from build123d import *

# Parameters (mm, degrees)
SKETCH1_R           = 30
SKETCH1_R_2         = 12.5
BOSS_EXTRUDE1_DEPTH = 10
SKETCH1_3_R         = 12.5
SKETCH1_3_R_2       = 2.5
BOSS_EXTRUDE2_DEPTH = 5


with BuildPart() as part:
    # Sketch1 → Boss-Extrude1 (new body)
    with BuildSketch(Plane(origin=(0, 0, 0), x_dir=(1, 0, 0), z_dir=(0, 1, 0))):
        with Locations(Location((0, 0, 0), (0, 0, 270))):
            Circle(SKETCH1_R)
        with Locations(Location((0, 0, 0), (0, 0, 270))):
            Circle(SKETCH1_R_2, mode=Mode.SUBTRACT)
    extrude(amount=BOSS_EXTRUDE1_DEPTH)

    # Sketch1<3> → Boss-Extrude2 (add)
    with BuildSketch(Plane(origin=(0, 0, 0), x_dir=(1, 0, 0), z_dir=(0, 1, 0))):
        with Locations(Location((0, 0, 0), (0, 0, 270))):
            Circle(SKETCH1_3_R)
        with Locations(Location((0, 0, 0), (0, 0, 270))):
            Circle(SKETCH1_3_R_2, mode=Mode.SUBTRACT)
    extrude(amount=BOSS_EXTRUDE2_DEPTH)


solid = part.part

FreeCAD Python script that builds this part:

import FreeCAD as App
import Part
import Sketcher
from FreeCAD import Vector

doc = App.newDocument("Part")
params = doc.addObject("Spreadsheet::Sheet", "Params")
for row, (alias, value) in enumerate([
    ("sketch1_diameter", "60 mm"),
    ("sketch1_diameter2", "25 mm"),
    ("pad1_length", "10 mm"),
    ("sketch2_diameter", "25 mm"),
    ("sketch2_diameter2", "5 mm"),
    ("pad2_length", "5 mm"),
], start=1):
    params.set(f"A{row}", alias)
    params.set(f"B{row}", "=" + value)
    params.setAlias(f"B{row}", alias)

body = doc.addObject("PartDesign::Body", "Body")

sketch1 = body.newObject("Sketcher::SketchObject", "Sketch")
sketch1.AttachmentSupport = (doc.getObject("XZ_Plane"), [""])
sketch1.MapMode = "FlatFace"
sketch1.addGeometry([
    Part.Circle(Vector(0, 0, 0), Vector(0, 0, 1), 30),
    Part.Circle(Vector(0, 0, 0), Vector(0, 0, 1), 12),
], False)
sketch1.addConstraint([
    Sketcher.Constraint("Coincident", 0, 3, -1, 1),
    Sketcher.Constraint("Coincident", 1, 3, -1, 1),
    Sketcher.Constraint("Diameter", 0, 60.0),
    Sketcher.Constraint("Diameter", 1, 25.0),
])
sketch1.setExpression("Constraints[2]", "Params.sketch1_diameter")
sketch1.setExpression("Constraints[3]", "Params.sketch1_diameter2")
pad1 = body.newObject("PartDesign::Pad", "Pad")
pad1.Profile = sketch1
pad1.setExpression("Length", "Params.pad1_length")
pad1.Reversed = True

sketch2 = body.newObject("Sketcher::SketchObject", "Sketch001")
sketch2.AttachmentSupport = (doc.getObject("XZ_Plane"), [""])
sketch2.MapMode = "FlatFace"
sketch2.addGeometry([
    Part.Circle(Vector(0, 0, 0), Vector(0, 0, 1), 12.5),
    Part.Circle(Vector(0, 0, 0), Vector(0, 0, 1), 2.5),
], False)
sketch2.addConstraint([
    Sketcher.Constraint("Coincident", 0, 3, -1, 1),
    Sketcher.Constraint("Coincident", 1, 3, -1, 1),
    Sketcher.Constraint("Diameter", 0, 25.0),
    Sketcher.Constraint("Diameter", 1, 5.0),
])
sketch2.setExpression("Constraints[2]", "Params.sketch2_diameter")
sketch2.setExpression("Constraints[3]", "Params.sketch2_diameter2")
pad2 = body.newObject("PartDesign::Pad", "Pad001")
pad2.Profile = sketch2
pad2.setExpression("Length", "Params.pad2_length")
pad2.Reversed = True

doc.recompute()
